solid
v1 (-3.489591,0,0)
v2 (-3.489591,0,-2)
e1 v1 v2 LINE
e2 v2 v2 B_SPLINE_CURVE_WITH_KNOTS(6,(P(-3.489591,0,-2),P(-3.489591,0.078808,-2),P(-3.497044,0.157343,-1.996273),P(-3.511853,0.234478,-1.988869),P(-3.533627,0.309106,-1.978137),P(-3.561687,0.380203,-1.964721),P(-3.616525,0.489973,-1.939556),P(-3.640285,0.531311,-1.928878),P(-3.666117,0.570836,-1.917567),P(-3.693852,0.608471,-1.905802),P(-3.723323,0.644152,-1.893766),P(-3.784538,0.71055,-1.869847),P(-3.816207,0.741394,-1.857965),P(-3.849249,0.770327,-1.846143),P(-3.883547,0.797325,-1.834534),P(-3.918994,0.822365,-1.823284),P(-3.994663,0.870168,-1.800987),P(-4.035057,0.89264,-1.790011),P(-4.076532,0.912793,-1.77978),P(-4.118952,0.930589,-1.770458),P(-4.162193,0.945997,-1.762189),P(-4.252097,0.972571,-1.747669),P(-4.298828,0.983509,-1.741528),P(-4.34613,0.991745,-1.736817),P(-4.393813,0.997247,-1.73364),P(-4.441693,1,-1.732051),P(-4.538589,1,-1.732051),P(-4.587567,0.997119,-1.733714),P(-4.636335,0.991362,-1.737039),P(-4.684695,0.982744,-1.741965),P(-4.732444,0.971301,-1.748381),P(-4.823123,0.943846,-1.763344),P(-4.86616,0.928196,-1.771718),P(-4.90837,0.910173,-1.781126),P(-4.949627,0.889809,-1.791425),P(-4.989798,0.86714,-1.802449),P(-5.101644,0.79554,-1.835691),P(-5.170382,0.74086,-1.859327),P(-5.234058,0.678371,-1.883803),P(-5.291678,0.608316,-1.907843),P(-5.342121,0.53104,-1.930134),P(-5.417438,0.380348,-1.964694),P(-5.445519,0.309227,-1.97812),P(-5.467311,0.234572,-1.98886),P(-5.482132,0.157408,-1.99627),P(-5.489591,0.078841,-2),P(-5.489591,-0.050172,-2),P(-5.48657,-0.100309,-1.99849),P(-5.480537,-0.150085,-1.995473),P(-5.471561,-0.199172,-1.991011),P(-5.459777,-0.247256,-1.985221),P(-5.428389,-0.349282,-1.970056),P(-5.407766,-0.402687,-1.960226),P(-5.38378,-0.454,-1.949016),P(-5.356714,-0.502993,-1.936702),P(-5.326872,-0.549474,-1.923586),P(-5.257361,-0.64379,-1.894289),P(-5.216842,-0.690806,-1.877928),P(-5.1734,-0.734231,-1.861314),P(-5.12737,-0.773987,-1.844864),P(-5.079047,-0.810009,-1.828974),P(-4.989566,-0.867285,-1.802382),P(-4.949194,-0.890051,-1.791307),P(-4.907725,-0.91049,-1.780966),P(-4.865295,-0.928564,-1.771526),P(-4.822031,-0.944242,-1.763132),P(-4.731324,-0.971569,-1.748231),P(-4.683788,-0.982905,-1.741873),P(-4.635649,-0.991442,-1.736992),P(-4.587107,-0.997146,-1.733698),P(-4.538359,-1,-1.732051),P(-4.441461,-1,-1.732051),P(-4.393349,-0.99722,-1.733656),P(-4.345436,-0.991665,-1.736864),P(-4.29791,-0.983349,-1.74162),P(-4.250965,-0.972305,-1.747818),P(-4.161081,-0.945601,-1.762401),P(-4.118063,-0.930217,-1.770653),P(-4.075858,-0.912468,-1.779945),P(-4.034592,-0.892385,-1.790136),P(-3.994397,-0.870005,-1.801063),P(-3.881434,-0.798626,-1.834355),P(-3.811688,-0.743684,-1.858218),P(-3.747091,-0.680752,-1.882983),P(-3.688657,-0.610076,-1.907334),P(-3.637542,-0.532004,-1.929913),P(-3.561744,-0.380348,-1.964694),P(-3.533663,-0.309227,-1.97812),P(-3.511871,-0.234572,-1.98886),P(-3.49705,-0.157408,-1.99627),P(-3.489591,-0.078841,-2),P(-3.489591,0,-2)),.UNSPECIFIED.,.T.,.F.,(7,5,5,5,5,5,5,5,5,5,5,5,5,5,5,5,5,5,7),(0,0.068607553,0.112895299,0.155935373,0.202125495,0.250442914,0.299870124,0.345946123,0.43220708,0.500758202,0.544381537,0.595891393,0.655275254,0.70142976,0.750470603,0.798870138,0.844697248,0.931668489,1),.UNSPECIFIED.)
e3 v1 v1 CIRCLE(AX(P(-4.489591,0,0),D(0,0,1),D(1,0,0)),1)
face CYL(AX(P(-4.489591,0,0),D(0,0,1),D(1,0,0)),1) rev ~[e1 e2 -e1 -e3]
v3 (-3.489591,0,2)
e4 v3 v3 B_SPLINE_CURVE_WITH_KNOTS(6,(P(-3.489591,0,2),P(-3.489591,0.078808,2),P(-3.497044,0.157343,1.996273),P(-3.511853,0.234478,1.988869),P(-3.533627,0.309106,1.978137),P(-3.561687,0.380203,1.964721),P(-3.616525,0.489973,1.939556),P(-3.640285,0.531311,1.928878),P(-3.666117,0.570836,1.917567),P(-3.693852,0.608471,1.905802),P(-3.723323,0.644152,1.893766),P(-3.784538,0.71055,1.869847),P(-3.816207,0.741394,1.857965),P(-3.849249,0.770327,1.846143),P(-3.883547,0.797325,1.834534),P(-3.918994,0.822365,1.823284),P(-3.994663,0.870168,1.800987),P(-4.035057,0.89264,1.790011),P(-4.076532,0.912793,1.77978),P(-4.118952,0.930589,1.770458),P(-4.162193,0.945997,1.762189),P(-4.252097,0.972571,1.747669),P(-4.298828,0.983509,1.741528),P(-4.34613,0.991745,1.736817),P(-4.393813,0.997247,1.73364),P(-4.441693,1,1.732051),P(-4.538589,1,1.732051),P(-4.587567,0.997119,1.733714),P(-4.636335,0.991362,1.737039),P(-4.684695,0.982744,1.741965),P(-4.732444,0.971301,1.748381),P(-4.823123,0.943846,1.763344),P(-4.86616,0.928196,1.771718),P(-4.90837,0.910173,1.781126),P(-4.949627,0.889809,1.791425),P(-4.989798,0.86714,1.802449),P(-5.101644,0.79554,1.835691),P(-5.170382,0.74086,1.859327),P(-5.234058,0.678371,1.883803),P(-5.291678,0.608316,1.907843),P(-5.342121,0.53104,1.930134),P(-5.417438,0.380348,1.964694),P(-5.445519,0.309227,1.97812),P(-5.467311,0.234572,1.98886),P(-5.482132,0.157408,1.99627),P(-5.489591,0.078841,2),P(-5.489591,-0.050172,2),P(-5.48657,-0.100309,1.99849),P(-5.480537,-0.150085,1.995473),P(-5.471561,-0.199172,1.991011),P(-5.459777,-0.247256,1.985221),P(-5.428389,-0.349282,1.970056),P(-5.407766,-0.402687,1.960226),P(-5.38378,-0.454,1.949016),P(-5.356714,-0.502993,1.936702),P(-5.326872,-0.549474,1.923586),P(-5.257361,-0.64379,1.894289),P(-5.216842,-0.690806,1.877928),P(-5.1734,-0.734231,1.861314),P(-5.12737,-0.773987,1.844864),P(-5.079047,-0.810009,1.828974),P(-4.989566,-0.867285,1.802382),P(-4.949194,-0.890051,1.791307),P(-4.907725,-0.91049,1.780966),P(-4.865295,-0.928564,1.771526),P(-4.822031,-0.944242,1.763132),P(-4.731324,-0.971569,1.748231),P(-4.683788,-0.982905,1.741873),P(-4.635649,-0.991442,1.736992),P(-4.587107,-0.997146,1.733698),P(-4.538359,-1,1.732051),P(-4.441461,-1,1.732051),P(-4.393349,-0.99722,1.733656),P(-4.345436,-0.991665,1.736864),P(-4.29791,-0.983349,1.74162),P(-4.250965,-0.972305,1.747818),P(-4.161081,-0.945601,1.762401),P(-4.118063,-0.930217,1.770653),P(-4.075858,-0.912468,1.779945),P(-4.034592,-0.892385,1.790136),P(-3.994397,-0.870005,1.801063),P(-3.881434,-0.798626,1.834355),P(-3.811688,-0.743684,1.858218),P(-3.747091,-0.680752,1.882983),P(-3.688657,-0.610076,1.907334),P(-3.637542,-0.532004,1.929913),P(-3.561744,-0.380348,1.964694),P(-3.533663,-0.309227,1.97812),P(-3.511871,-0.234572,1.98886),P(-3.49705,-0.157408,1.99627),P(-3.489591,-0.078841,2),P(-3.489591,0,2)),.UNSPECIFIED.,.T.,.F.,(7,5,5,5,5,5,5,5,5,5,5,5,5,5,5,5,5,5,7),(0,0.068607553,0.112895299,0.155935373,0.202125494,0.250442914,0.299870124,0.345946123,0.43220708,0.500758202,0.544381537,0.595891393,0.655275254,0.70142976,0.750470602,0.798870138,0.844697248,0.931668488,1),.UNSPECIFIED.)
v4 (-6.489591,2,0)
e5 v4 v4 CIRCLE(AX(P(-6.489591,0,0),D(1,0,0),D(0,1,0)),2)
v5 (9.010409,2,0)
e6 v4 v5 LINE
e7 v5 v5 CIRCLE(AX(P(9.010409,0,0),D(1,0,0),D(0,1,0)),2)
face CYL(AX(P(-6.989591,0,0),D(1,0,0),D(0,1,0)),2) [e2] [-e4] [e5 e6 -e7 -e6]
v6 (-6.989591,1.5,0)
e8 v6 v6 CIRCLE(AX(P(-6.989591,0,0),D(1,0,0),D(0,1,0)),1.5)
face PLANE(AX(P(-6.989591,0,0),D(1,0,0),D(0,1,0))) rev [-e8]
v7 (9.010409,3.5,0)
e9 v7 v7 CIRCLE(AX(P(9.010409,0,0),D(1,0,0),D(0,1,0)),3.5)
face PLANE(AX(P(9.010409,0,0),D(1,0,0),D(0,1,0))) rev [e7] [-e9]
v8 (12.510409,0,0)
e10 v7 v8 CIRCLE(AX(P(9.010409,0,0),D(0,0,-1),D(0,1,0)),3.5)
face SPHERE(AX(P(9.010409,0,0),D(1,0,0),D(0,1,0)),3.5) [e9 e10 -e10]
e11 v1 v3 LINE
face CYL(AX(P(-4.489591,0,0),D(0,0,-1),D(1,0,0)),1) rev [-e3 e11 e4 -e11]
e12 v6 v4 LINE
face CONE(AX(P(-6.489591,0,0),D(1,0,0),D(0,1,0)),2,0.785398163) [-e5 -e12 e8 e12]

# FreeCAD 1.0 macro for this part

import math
import FreeCAD as App
import Part
import Sketcher
from FreeCAD import Vector
Q = App.Units.Quantity


def edges_at(feature, points):
    """Names of the edges that pass closest to the given points."""
    edges = feature.Shape.Edges
    near = lambda p: min(range(len(edges)), key=lambda i: edges[i].distToShape(Part.Vertex(*p))[0])
    return sorted({f"Edge{near(p) + 1}" for p in points})

doc = App.newDocument("Part")
body = doc.addObject("PartDesign::Body", "Body")

# Sketch on XY plane
sketch1 = body.newObject("Sketcher::SketchObject", "Sketch")
sketch1.AttachmentSupport = (doc.getObject("XY_Plane"), [""])
sketch1.MapMode = "FlatFace"
sketch1.addGeometry(Part.LineSegment(Vector(-6.989591, 2, 0), Vector(-6.989591, 0, 0)), False)
sketch1.addGeometry(Part.LineSegment(Vector(-6.989591, 0, 0), Vector(12.510409, 0, 0)), False)
sketch1.addGeometry(Part.ArcOfCircle(Part.Circle(Vector(9.010409, 0, 0), Vector(0, 0, 1), 3.5), math.radians(0), math.radians(90)), False)
sketch1.addGeometry(Part.LineSegment(Vector(9.010409, 3.5, 0), Vector(9.010409, 2, 0)), False)
sketch1.addGeometry(Part.LineSegment(Vector(9.010409, 2, 0), Vector(-6.989591, 2, 0)), False)
sketch1.addConstraint(Sketcher.Constraint("Coincident", 0, 2, 1, 1))
sketch1.addConstraint(Sketcher.Constraint("Coincident", 1, 2, 2, 1))
sketch1.addConstraint(Sketcher.Constraint("Coincident", 2, 2, 3, 1))
sketch1.addConstraint(Sketcher.Constraint("Coincident", 3, 2, 4, 1))
sketch1.addConstraint(Sketcher.Constraint("Coincident", 4, 2, 0, 1))
sketch1.addConstraint(Sketcher.Constraint("Vertical", 0))
sketch1.addConstraint(Sketcher.Constraint("Horizontal", 1))
sketch1.addConstraint(Sketcher.Constraint("Vertical", 3))
sketch1.addConstraint(Sketcher.Constraint("Horizontal", 4))
sketch1.addConstraint(Sketcher.Constraint("PointOnObject", 2, 3, -1))
sketch1.addConstraint(Sketcher.Constraint("PointOnObject", 0, 2, -1))
sketch1.addConstraint(Sketcher.Constraint("Radius", 2, Q("3.5 mm")))
sketch1.addConstraint(Sketcher.Constraint("DistanceX", 4, 2, 4, 1, Q("16 mm")))
sketch1.addConstraint(Sketcher.Constraint("DistanceY", 0, 2, 0, 1, Q("2 mm")))
sketch1.addConstraint(Sketcher.Constraint("DistanceX", 1, 1, 1, 2, Q("19.5 mm")))
sketch1.addConstraint(Sketcher.Constraint("DistanceX", -1, 1, 2, 3, Q("9.010409 mm")))
revolution = body.newObject("PartDesign::Revolution", "Revolution")
revolution.Profile = sketch1
revolution.ReferenceAxis = (sketch1, ["H_Axis"])
revolution.Angle = 360
doc.recompute()

chamfer = body.newObject("PartDesign::Chamfer", "Chamfer")
chamfer.Base = (revolution, edges_at(revolution, [(-6.99, -2, 0)]))
chamfer.Size = 0.5

# Sketch on XY plane
sketch2 = body.newObject("Sketcher::SketchObject", "Sketch001")
sketch2.AttachmentSupport = (doc.getObject("XY_Plane"), [""])
sketch2.MapMode = "FlatFace"
sketch2.addGeometry(Part.Circle(Vector(-4.489591, 0, 0), Vector(0, 0, 1), 1), False)
sketch2.addConstraint(Sketcher.Constraint("PointOnObject", 0, 3, -1))
sketch2.addConstraint(Sketcher.Constraint("Diameter", 0, Q("2 mm")))
sketch2.addConstraint(Sketcher.Constraint("DistanceX", 0, 3, -1, 1, Q("4.489591 mm")))
pocket1 = body.newObject("PartDesign::Pocket", "Pocket")
pocket1.Profile = sketch2
pocket1.Type = "ThroughAll"
pocket1.Midplane = True

doc.recompute()
